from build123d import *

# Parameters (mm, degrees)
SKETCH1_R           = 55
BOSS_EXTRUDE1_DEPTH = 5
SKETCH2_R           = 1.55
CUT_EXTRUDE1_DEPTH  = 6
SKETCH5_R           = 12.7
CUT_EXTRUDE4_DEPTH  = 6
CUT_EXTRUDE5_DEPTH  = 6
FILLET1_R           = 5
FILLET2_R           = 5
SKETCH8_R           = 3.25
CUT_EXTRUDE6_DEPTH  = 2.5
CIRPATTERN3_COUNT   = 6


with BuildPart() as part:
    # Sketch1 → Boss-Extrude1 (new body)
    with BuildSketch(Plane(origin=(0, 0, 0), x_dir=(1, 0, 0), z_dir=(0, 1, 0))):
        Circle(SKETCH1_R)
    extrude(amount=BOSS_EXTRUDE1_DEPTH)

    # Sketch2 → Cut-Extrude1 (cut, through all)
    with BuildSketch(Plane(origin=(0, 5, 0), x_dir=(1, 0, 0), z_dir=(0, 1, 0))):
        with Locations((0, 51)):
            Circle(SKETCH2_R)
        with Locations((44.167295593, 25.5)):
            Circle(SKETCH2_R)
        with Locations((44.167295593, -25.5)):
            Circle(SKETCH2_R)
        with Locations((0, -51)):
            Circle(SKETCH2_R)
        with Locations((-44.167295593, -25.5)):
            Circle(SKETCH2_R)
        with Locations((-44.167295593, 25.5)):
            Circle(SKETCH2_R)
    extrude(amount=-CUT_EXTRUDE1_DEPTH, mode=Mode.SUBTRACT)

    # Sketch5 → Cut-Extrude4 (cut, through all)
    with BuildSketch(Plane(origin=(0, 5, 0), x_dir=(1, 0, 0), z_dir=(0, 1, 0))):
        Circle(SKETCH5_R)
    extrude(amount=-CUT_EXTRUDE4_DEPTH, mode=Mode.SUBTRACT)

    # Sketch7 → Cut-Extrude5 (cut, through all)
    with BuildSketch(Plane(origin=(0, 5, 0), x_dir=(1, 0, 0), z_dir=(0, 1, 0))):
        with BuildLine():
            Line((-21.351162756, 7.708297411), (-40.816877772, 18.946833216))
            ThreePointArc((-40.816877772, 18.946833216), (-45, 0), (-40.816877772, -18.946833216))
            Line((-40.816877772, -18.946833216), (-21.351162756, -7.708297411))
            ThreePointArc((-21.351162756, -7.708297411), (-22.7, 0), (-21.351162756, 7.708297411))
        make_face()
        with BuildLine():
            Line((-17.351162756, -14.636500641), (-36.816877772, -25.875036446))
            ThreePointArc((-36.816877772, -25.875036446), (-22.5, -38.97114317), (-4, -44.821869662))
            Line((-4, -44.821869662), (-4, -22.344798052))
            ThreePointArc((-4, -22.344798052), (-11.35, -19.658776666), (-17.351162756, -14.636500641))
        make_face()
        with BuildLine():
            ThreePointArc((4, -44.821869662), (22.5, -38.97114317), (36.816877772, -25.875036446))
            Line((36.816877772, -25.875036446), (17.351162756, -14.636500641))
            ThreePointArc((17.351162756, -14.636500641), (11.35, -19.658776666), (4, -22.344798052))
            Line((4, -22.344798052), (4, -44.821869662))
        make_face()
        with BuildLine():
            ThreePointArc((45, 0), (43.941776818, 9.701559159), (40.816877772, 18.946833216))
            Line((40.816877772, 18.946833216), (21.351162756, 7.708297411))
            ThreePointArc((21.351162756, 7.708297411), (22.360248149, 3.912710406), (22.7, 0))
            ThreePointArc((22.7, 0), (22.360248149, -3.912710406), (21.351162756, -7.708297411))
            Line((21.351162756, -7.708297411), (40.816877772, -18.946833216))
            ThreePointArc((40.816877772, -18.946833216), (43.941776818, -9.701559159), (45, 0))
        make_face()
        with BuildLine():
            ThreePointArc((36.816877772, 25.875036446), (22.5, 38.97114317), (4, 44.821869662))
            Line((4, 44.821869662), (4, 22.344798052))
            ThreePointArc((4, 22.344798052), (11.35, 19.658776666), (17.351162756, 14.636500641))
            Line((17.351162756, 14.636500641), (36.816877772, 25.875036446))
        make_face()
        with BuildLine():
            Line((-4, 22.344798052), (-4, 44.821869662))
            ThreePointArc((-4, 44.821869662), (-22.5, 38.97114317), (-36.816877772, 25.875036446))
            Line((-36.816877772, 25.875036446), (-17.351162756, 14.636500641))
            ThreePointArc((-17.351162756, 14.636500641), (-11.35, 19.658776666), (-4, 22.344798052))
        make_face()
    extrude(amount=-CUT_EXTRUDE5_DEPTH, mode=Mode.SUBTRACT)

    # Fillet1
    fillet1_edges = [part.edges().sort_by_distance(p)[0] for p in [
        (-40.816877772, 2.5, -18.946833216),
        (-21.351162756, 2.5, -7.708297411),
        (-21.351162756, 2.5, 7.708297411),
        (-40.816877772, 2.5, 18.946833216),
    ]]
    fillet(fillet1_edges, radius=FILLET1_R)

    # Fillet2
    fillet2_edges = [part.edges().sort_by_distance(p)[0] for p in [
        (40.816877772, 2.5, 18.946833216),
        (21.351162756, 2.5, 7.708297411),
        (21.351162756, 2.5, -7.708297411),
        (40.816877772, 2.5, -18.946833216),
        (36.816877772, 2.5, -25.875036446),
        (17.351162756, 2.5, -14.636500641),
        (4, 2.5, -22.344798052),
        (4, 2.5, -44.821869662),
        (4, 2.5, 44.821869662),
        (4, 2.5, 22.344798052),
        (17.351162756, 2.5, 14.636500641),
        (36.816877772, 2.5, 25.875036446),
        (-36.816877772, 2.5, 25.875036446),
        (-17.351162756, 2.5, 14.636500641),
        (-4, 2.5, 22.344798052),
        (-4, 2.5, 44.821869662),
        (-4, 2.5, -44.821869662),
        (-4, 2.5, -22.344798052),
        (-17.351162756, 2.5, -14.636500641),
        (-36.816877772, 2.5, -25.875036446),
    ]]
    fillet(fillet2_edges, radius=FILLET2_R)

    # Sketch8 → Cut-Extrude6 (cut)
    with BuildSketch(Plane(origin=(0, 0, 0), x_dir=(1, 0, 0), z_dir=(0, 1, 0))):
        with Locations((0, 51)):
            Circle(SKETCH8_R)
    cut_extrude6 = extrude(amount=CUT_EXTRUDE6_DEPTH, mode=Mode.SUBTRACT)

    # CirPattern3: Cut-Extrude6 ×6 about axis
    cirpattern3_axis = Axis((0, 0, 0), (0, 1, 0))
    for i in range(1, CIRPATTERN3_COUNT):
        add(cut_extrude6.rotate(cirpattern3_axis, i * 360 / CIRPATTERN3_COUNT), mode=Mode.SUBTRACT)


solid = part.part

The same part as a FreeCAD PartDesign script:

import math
import FreeCAD as App
import Part
import Sketcher

V = App.Vector
Q = App.Units.Quantity


def edges_at(feature, points):
    """Names of the edges that pass closest to the given points."""
    edges = feature.Shape.Edges
    near = lambda p: min(range(len(edges)), key=lambda i: edges[i].distToShape(Part.Vertex(*p))[0])
    return sorted({f"Edge{near(p) + 1}" for p in points})

doc = App.newDocument("Part")
params = doc.addObject("Spreadsheet::Sheet", "Params")
for row, (alias, value) in enumerate([
    ("sketch1_diameter", "110 mm"),
    ("pad1_length", "5 mm"),
    ("sketch2_diameter", "3.1 mm"),
    ("sketch3_diameter", "25.4 mm"),
    ("sketch4_radius", "45 mm"),
    ("sketch4_radius2", "22.7 mm"),
    ("fillet_radius", "5 mm"),
    ("fillet2_radius", "5 mm"),
    ("sketch5_diameter", "6.5 mm"),
    ("pocket4_length", "2.5 mm"),
], start=1):
    params.set(f"A{row}", alias)
    params.set(f"B{row}", "=" + value)
    params.setAlias(f"B{row}", alias)

body = doc.addObject("PartDesign::Body", "Body")

sketch1 = body.newObject("Sketcher::SketchObject", "Sketch")
sketch1.AttachmentSupport = (doc.getObject("XZ_Plane"), [""])
sketch1.MapMode = "FlatFace"
sketch1.addGeometry(Part.Circle(V(0, 0, 0), V(0, 0, 1), 55), False)
sketch1.addConstraint(Sketcher.Constraint("Coincident", 0, 3, -1, 1))
sketch1.addConstraint(Sketcher.Constraint("Diameter", 0, Q("110 mm")))
sketch1.setExpression("Constraints[1]", "Params.sketch1_diameter")
pad1 = body.newObject("PartDesign::Pad", "Pad")
pad1.Profile = sketch1
pad1.setExpression("Length", "Params.pad1_length")
pad1.Reversed = True

sketch2 = body.newObject("Sketcher::SketchObject", "Sketch001")
sketch2.AttachmentSupport = (doc.getObject("XZ_Plane"), [""])
sketch2.MapMode = "FlatFace"
sketch2.AttachmentOffset = App.Placement(V(0, 0, -5), App.Rotation())
sketch2.addGeometry(Part.Circle(V(0, -51, 0), V(0, 0, 1), 1.55), False)
sketch2.addGeometry(Part.Circle(V(44.167296, -25.5, 0), V(0, 0, 1), 1.55), False)
sketch2.addGeometry(Part.Circle(V(44.167296, 25.5, 0), V(0, 0, 1), 1.55), False)
sketch2.addGeometry(Part.Circle(V(0, 51, 0), V(0, 0, 1), 1.55), False)
sketch2.addGeometry(Part.Circle(V(-44.167296, 25.5, 0), V(0, 0, 1), 1.55), False)
sketch2.addGeometry(Part.Circle(V(-44.167296, -25.5, 0), V(0, 0, 1), 1.55), False)
sketch2.addConstraint(Sketcher.Constraint("Equal", 0, 1))
sketch2.addConstraint(Sketcher.Constraint("Equal", 1, 2))
sketch2.addConstraint(Sketcher.Constraint("Equal", 2, 3))
sketch2.addConstraint(Sketcher.Constraint("Equal", 3, 4))
sketch2.addConstraint(Sketcher.Constraint("Equal", 4, 5))
sketch2.addConstraint(Sketcher.Constraint("Symmetric", 0, 3, 3, 3, -1, 1))
sketch2.addConstraint(Sketcher.Constraint("Symmetric", 1, 3, 4, 3, -1, 1))
sketch2.addConstraint(Sketcher.Constraint("Symmetric", 2, 3, 5, 3, -1, 1))
sketch2.addConstraint(Sketcher.Constraint("Symmetric", 2, 3, 4, 3, -2))
sketch2.addConstraint(Sketcher.Constraint("PointOnObject", 0, 3, -2))
sketch2.addConstraint(Sketcher.Constraint("Diameter", 0, Q("3.1 mm")))
sketch2.addConstraint(Sketcher.Constraint("DistanceY", 0, 3, -1, 1, Q("51 mm")))
sketch2.addConstraint(Sketcher.Constraint("DistanceY", 1, 3, 2, 3, Q("51 mm")))
sketch2.addConstraint(Sketcher.Constraint("DistanceX", 4, 3, 2, 3, Q("88.334591 mm")))
sketch2.setExpression("Constraints[10]", "Params.sketch2_diameter")
pocket1 = body.newObject("PartDesign::Pocket", "Pocket")
pocket1.Profile = sketch2
pocket1.Type = "ThroughAll"
pocket1.Reversed = True

sketch3 = body.newObject("Sketcher::SketchObject", "Sketch002")
sketch3.AttachmentSupport = (doc.getObject("XZ_Plane"), [""])
sketch3.MapMode = "FlatFace"
sketch3.AttachmentOffset = App.Placement(V(0, 0, -5), App.Rotation())
sketch3.addGeometry(Part.Circle(V(0, 0, 0), V(0, 0, 1), 12.7), False)
sketch3.addConstraint(Sketcher.Constraint("Coincident", 0, 3, -1, 1))
sketch3.addConstraint(Sketcher.Constraint("Diameter", 0, Q("25.4 mm")))
sketch3.setExpression("Constraints[1]", "Params.sketch3_diameter")
pocket2 = body.newObject("PartDesign::Pocket", "Pocket001")
pocket2.Profile = sketch3
pocket2.Type = "ThroughAll"
pocket2.Reversed = True

sketch4 = body.newObject("Sketcher::SketchObject", "Sketch003")
sketch4.AttachmentSupport = (doc.getObject("XZ_Plane"), [""])
sketch4.MapMode = "FlatFace"
sketch4.AttachmentOffset = App.Placement(V(0, 0, -5), App.Rotation())
sketch4.addGeometry(Part.LineSegment(V(-21.351163, -7.708297, 0), V(-40.816878, -18.946833, 0)), False)
sketch4.addGeometry(Part.ArcOfCircle(Part.Circle(V(0, 0, 0), V(0, 0, 1), 45), math.radians(155.099689), math.radians(204.900311)), False)
sketch4.addGeometry(Part.LineSegment(V(-40.816878, 18.946833, 0), V(-21.351163, 7.708297, 0)), False)
sketch4.addGeometry(Part.ArcOfCircle(Part.Circle(V(0, 0, 0), V(0, 0, 1), 22.7), math.radians(160.149165), math.radians(199.850835)), False)
sketch4.addGeometry(Part.LineSegment(V(-17.351163, 14.636501, 0), V(-36.816878, 25.875036, 0)), False)
sketch4.addGeometry(Part.ArcOfCircle(Part.Circle(V(0, 0, 0), V(0, 0, 1), 45), math.radians(95.099689), math.radians(144.900311)), False)
sketch4.addGeometry(Part.LineSegment(V(-4, 44.82187, 0), V(-4, 22.344798, 0)), False)
sketch4.addGeometry(Part.ArcOfCircle(Part.Circle(V(0, 0, 0), V(0, 0, 1), 22.7), math.radians(100.149165), math.radians(139.850835)), False)
sketch4.addGeometry(Part.ArcOfCircle(Part.Circle(V(0, 0, 0), V(0, 0, 1), 45), math.radians(35.099689), math.radians(84.900311)), False)
sketch4.addGeometry(Part.LineSegment(V(36.816878, 25.875036, 0), V(17.351163, 14.636501, 0)), False)
sketch4.addGeometry(Part.ArcOfCircle(Part.Circle(V(0, 0, 0), V(0, 0, 1), 22.7), math.radians(40.149165), math.radians(79.850835)), False)
sketch4.addGeometry(Part.LineSegment(V(4, 22.344798, 0), V(4, 44.82187, 0)), False)
sketch4.addGeometry(Part.ArcOfCircle(Part.Circle(V(0, 0, 0), V(0, 0, 1), 45), math.radians(-24.900311), math.radians(0)), False)
sketch4.addGeometry(Part.LineSegment(V(40.816878, -18.946833, 0), V(21.351163, -7.708297, 0)), False)
sketch4.addGeometry(Part.ArcOfCircle(Part.Circle(V(0, 0, 0), V(0, 0, 1), 22.7), math.radians(-19.850835), math.radians(0)), False)
sketch4.addGeometry(Part.ArcOfCircle(Part.Circle(V(0, 0, 0), V(0, 0, 1), 22.7), math.radians(0), math.radians(19.850835)), False)
sketch4.addGeometry(Part.LineSegment(V(21.351163, 7.708297, 0), V(40.816878, 18.946833, 0)), False)
sketch4.addGeometry(Part.ArcOfCircle(Part.Circle(V(0, 0, 0), V(0, 0, 1), 45), math.radians(0), math.radians(24.900311)), False)
sketch4.addGeometry(Part.ArcOfCircle(Part.Circle(V(0, 0, 0), V(0, 0, 1), 45), math.radians(-84.900311), math.radians(-35.099689)), False)
sketch4.addGeometry(Part.LineSegment(V(4, -44.82187, 0), V(4, -22.344798, 0)), False)
sketch4.addGeometry(Part.ArcOfCircle(Part.Circle(V(0, 0, 0), V(0, 0, 1), 22.7), math.radians(-79.850835), math.radians(-40.149165)), False)
sketch4.addGeometry(Part.LineSegment(V(17.351163, -14.636501, 0), V(36.816878, -25.875036, 0)), False)
sketch4.addGeometry(Part.LineSegment(V(-4, -22.344798, 0), V(-4, -44.82187, 0)), False)
sketch4.addGeometry(Part.ArcOfCircle(Part.Circle(V(0, 0, 0), V(0, 0, 1), 45), math.radians(-144.900311), math.radians(-95.099689)), False)
sketch4.addGeometry(Part.LineSegment(V(-36.816878, -25.875036, 0), V(-17.351163, -14.636501, 0)), False)
sketch4.addGeometry(Part.ArcOfCircle(Part.Circle(V(0, 0, 0), V(0, 0, 1), 22.7), math.radians(-139.850835), math.radians(-100.149165)), False)
sketch4.addConstraint(Sketcher.Constraint("Coincident", 0, 2, 1, 2))
sketch4.addConstraint(Sketcher.Constraint("Coincident", 1, 1, 2, 1))
sketch4.addConstraint(Sketcher.Constraint("Coincident", 2, 2, 3, 1))
sketch4.addConstraint(Sketcher.Constraint("Coincident", 3, 2, 0, 1))
sketch4.addConstraint(Sketcher.Constraint("Coincident", 4, 2, 5, 2))
sketch4.addConstraint(Sketcher.Constraint("Coincident", 5, 1, 6, 1))
sketch4.addConstraint(Sketcher.Constraint("Coincident", 6, 2, 7, 1))
sketch4.addConstraint(Sketcher.Constraint("Coincident", 7, 2, 4, 1))
sketch4.addConstraint(Sketcher.Constraint("Coincident", 8, 1, 9, 1))
sketch4.addConstraint(Sketcher.Constraint("Coincident", 9, 2, 10, 1))
sketch4.addConstraint(Sketcher.Constraint("Coincident", 10, 2, 11, 1))
sketch4.addConstraint(Sketcher.Constraint("Coincident", 11, 2, 8, 2))
sketch4.addConstraint(Sketcher.Constraint("Coincident", 12, 1, 13, 1))
sketch4.addConstraint(Sketcher.Constraint("Coincident", 13, 2, 14, 1))
sketch4.addConstraint(Sketcher.Constraint("Tangent", 14, 2, 15, 1))
sketch4.addConstraint(Sketcher.Constraint("Coincident", 15, 2, 16, 1))
sketch4.addConstraint(Sketcher.Constraint("Coincident", 16, 2, 17, 2))
sketch4.addConstraint(Sketcher.Constraint("Tangent", 17, 1, 12, 2))
sketch4.addConstraint(Sketcher.Constraint("Coincident", 18, 1, 19, 1))
sketch4.addConstraint(Sketcher.Constraint("Coincident", 19, 2, 20, 1))
sketch4.addConstraint(Sketcher.Constraint("Coincident", 20, 2, 21, 1))
sketch4.addConstraint(Sketcher.Constraint("Coincident", 21, 2, 18, 2))
sketch4.addConstraint(Sketcher.Constraint("Coincident", 22, 2, 23, 2))
sketch4.addConstraint(Sketcher.Constraint("Coincident", 23, 1, 24, 1))
sketch4.addConstraint(Sketcher.Constraint("Coincident", 24, 2, 25, 1))
sketch4.addConstraint(Sketcher.Constraint("Coincident", 25, 2, 22, 1))
sketch4.addConstraint(Sketcher.Constraint("Vertical", 6))
sketch4.addConstraint(Sketcher.Constraint("Vertical", 11))
sketch4.addConstraint(Sketcher.Constraint("Vertical", 19))
sketch4.addConstraint(Sketcher.Constraint("Vertical", 22))
sketch4.addConstraint(Sketcher.Constraint("Coincident", 1, 3, -1, 1))
sketch4.addConstraint(Sketcher.Constraint("Coincident", 3, 3, -1, 1))
sketch4.addConstraint(Sketcher.Constraint("Coincident", 5, 3, -1, 1))
sketch4.addConstraint(Sketcher.Constraint("Coincident", 7, 3, -1, 1))
sketch4.addConstraint(Sketcher.Constraint("Coincident", 8, 3, -1, 1))
sketch4.addConstraint(Sketcher.Constraint("Coincident", 10, 3, -1, 1))
sketch4.addConstraint(Sketcher.Constraint("Coincident", 12, 3, -1, 1))
sketch4.addConstraint(Sketcher.Constraint("Coincident", 14, 3, -1, 1))
sketch4.addConstraint(Sketcher.Constraint("Coincident", 18, 3, -1, 1))
sketch4.addConstraint(Sketcher.Constraint("Coincident", 20, 3, -1, 1))
sketch4.addConstraint(Sketcher.Constraint("Coincident", 23, 3, -1, 1))
sketch4.addConstraint(Sketcher.Constraint("Coincident", 25, 3, -1, 1))
sketch4.addConstraint(Sketcher.Constraint("Equal", 1, 5))
sketch4.addConstraint(Sketcher.Constraint("Equal", 3, 7))
sketch4.addConstraint(Sketcher.Constraint("Equal", 5, 8))
sketch4.addConstraint(Sketcher.Constraint("Equal", 7, 10))
sketch4.addConstraint(Sketcher.Constraint("Equal", 8, 12))
sketch4.addConstraint(Sketcher.Constraint("Equal", 10, 14))
sketch4.addConstraint(Sketcher.Constraint("Equal", 14, 15))
sketch4.addConstraint(Sketcher.Constraint("Equal", 12, 17))
sketch4.addConstraint(Sketcher.Constraint("Equal", 17, 18))
sketch4.addConstraint(Sketcher.Constraint("Equal", 15, 20))
sketch4.addConstraint(Sketcher.Constraint("Equal", 18, 23))
sketch4.addConstraint(Sketcher.Constraint("Equal", 20, 25))
sketch4.addConstraint(Sketcher.Constraint("PointOnObject", 14, 2, -1))
sketch4.addConstraint(Sketcher.Constraint("PointOnObject", 17, 1, -1))
sketch4.addConstraint(Sketcher.Constraint("Parallel", 2, 4))
sketch4.addConstraint(Sketcher.Constraint("Parallel", 0, 9))
sketch4.addConstraint(Sketcher.Constraint("Parallel", 4, 13))
sketch4.addConstraint(Sketcher.Constraint("Parallel", 9, 16))
sketch4.addConstraint(Sketcher.Constraint("Parallel", 13, 21))
sketch4.addConstraint(Sketcher.Constraint("Parallel", 16, 24))
sketch4.addConstraint(Sketcher.Constraint("Horizontal", 4, 2, 8, 1))
sketch4.addConstraint(Sketcher.Constraint("Horizontal", 7, 2, 9, 2))
sketch4.addConstraint(Sketcher.Constraint("Horizontal", 6, 2, 10, 2))
sketch4.addConstraint(Sketcher.Constraint("Horizontal", 0, 2, 12, 1))
sketch4.addConstraint(Sketcher.Constraint("Horizontal", 2, 2, 15, 2))
sketch4.addConstraint(Sketcher.Constraint("Horizontal", 18, 1, 22, 2))
sketch4.addConstraint(Sketcher.Constraint("Horizontal", 21, 2, 23, 1))
sketch4.addConstraint(Sketcher.Constraint("Vertical", 0, 2, 1, 1))
sketch4.addConstraint(Sketcher.Constraint("Vertical", 11, 2, 18, 1))
sketch4.addConstraint(Sketcher.Constraint("Vertical", 9, 2, 20, 2))
sketch4.addConstraint(Sketcher.Constraint("Equal", 2, 4))
sketch4.addConstraint(Sketcher.Constraint("Radius", 1, Q("45 mm")))
sketch4.addConstraint(Sketcher.Constraint("Radius", 3, Q("22.7 mm")))
sketch4.addConstraint(Sketcher.Constraint("Angle", 0, Q("-150 deg")))
sketch4.addConstraint(Sketcher.Constraint("DistanceX", 5, 1, -1, 1, Q("4 mm")))
sketch4.addConstraint(Sketcher.Constraint("DistanceX", 1, 1, 4, 2, Q("4 mm")))
sketch4.setExpression("Constraints[73]", "Params.sketch4_radius")
sketch4.setExpression("Constraints[74]", "Params.sketch4_radius2")
pocket3 = body.newObject("PartDesign::Pocket", "Pocket002")
pocket3.Profile = sketch4
pocket3.Type = "ThroughAll"
pocket3.Reversed = True
doc.recompute()

fillet = body.newObject("PartDesign::Fillet", "Fillet")
fillet.Base = (pocket3, edges_at(pocket3, [
    (-40.817, 2.5, -18.947),
    (-21.351, 2.5, -7.708),
    (-21.351, 2.5, 7.708),
    (-40.817, 2.5, 18.947),
]))
fillet.setExpression("Radius", "Params.fillet_radius")
doc.recompute()

fillet2 = body.newObject("PartDesign::Fillet", "Fillet001")
fillet2.Base = (fillet, edges_at(fillet, [
    (40.817, 2.5, 18.947),
    (21.351, 2.5, 7.708),
    (21.351, 2.5, -7.708),
    (40.817, 2.5, -18.947),
    (36.817, 2.5, -25.875),
    (17.351, 2.5, -14.637),
    (4, 2.5, -22.345),
    (4, 2.5, -44.822),
    (4, 2.5, 44.822),
    (4, 2.5, 22.345),
    (17.351, 2.5, 14.637),
    (36.817, 2.5, 25.875),
    (-36.817, 2.5, 25.875),
    (-17.351, 2.5, 14.637),
    (-4, 2.5, 22.345),
    (-4, 2.5, 44.822),
    (-4, 2.5, -44.822),
    (-4, 2.5, -22.345),
    (-17.351, 2.5, -14.637),
    (-36.817, 2.5, -25.875),
]))
fillet2.setExpression("Radius", "Params.fillet2_radius")

sketch5 = body.newObject("Sketcher::SketchObject", "Sketch004")
sketch5.AttachmentSupport = (doc.getObject("XZ_Plane"), [""])
sketch5.MapMode = "FlatFace"
sketch5.addGeometry(Part.Circle(V(0, -51, 0), V(0, 0, 1), 3.25), False)
sketch5.addConstraint(Sketcher.Constraint("PointOnObject", 0, 3, -2))
sketch5.addConstraint(Sketcher.Constraint("Diameter", 0, Q("6.5 mm")))
sketch5.addConstraint(Sketcher.Constraint("DistanceY", 0, 3, -1, 1, Q("51 mm")))
sketch5.setExpression("Constraints[1]", "Params.sketch5_diameter")
pocket4 = body.newObject("PartDesign::Pocket", "Pocket003")
pocket4.Profile = sketch5
pocket4.setExpression("Length", "Params.pocket4_length")
doc.recompute()

polarpattern = body.newObject("PartDesign::PolarPattern", "PolarPattern")
polarpattern.Originals = [pocket4]
polarpattern.Axis = (doc.getObject("Y_Axis"), [""])
polarpattern.Angle = 360
polarpattern.Occurrences = 6
body.Tip = polarpattern

doc.recompute()
